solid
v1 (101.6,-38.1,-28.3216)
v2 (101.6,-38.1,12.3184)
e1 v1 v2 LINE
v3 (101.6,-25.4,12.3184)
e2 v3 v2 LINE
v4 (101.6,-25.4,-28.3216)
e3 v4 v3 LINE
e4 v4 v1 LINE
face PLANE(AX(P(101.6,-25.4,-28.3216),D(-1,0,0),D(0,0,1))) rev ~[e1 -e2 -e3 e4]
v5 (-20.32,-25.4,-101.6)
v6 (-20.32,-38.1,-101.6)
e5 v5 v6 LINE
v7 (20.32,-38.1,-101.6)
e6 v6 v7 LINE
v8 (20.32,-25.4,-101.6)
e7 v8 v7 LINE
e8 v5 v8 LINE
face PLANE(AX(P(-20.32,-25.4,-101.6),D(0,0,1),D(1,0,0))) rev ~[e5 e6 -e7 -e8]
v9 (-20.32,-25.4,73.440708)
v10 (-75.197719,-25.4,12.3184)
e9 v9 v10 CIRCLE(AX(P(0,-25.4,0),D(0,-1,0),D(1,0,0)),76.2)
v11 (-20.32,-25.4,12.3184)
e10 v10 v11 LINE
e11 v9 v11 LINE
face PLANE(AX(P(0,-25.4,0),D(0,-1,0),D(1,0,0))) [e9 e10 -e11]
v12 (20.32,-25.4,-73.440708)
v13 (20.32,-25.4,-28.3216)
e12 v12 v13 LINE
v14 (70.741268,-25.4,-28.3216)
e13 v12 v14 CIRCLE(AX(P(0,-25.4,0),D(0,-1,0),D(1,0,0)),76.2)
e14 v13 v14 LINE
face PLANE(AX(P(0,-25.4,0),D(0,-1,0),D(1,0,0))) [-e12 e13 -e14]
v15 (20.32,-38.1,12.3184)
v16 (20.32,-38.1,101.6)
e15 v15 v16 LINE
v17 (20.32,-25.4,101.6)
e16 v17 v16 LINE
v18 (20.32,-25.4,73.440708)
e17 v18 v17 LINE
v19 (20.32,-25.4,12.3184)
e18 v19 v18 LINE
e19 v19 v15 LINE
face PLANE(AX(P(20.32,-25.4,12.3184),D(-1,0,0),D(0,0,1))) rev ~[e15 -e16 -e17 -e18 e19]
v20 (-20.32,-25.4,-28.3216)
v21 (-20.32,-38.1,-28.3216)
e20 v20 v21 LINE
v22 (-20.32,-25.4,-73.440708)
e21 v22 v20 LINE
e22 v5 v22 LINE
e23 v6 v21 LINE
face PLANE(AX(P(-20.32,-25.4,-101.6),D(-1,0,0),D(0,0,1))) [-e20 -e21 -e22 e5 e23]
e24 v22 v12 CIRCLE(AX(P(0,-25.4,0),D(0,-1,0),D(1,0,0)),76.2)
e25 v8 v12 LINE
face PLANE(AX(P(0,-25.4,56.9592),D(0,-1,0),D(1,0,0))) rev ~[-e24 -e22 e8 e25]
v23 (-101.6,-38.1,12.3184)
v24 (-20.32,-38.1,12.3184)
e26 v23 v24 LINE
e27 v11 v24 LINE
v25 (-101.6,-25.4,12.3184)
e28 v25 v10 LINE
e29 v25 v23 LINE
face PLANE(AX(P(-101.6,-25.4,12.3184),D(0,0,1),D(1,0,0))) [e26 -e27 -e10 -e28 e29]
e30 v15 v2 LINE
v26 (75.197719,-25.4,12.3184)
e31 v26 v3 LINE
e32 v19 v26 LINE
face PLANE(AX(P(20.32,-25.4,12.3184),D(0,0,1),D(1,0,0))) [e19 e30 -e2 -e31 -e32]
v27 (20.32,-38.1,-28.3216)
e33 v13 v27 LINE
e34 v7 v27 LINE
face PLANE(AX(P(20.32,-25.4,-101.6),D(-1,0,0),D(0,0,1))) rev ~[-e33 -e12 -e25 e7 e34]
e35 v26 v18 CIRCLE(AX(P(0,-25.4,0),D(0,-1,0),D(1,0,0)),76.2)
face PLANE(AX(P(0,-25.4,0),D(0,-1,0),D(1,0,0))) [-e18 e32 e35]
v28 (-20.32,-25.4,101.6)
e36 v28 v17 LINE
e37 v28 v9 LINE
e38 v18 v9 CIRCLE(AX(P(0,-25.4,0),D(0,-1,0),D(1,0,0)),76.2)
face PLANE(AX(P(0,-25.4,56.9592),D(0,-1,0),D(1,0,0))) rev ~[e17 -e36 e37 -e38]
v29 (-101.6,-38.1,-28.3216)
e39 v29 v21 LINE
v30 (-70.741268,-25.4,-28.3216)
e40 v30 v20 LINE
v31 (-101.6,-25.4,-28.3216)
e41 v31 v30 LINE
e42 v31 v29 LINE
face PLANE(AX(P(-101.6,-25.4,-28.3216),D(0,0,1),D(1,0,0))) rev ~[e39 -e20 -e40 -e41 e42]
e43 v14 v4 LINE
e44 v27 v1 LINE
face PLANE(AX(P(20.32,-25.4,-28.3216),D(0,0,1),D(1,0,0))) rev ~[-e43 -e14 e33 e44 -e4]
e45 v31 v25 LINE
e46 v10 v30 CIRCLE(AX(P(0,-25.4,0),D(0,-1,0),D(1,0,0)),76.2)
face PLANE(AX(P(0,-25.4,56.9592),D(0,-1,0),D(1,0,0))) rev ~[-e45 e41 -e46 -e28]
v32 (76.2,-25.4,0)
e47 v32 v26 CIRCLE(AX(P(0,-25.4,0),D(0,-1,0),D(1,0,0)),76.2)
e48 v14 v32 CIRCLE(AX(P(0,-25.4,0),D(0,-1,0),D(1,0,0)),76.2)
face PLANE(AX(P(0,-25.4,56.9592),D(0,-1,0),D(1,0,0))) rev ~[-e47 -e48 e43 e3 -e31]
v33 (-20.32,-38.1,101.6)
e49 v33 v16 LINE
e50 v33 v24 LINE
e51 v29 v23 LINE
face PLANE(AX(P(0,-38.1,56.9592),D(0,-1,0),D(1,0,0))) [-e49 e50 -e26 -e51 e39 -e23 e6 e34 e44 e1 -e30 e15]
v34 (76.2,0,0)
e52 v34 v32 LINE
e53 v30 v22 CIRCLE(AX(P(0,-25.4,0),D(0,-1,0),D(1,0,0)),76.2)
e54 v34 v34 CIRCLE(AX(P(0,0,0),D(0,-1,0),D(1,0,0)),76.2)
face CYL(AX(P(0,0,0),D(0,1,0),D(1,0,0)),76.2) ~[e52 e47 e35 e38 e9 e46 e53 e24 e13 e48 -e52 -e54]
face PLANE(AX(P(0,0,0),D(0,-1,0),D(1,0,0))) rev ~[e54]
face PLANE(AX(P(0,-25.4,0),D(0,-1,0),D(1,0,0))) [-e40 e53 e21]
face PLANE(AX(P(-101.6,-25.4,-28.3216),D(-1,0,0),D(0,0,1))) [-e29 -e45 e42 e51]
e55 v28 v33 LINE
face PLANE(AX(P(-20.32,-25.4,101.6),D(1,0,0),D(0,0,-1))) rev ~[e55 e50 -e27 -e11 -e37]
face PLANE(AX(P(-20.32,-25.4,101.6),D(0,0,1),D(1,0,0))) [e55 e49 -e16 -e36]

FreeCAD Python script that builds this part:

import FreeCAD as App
import Part
import Sketcher

V = App.Vector
Q = App.Units.Quantity

doc = App.newDocument("Part")
params = doc.addObject("Spreadsheet::Sheet", "Params")
for row, (alias, value) in enumerate([
    ("sketch1_diameter", "6 in"),
    ("pad1_length", "1 in"),
    ("sketch2_width", "3.2 in"),
    ("sketch2_width2", "1.6 in"),
    ("pad2_length", "0.5 in"),
], start=1):
    params.set(f"A{row}", alias)
    params.set(f"B{row}", "=" + value)
    params.setAlias(f"B{row}", alias)

body = doc.addObject("PartDesign::Body", "Body")

# Sketch on XZ plane
sketch1 = doc.addObject("Sketcher::SketchObject", "Sketch")
body.addObject(sketch1)
sketch1.AttachmentSupport = (doc.XZ_Plane, [""])
sketch1.MapMode = "FlatFace"
sketch1.addGeometry(Part.Circle(V(0, 0, 0), V(0, 0, 1), 76.2), False)
sketch1.addConstraint(Sketcher.Constraint("Coincident", 0, 3, -1, 1))
sketch1.addConstraint(Sketcher.Constraint("Diameter", 0, Q("6 in")))
sketch1.setExpression("Constraints[1]", "Params.sketch1_diameter")
pad1 = doc.addObject("PartDesign::Pad", "Pad")
body.addObject(pad1)
pad1.Profile = sketch1
pad1.setExpression("Length", "Params.pad1_length")

# Sketch on XZ plane
sketch2 = doc.addObject("Sketcher::SketchObject", "Sketch001")
body.addObject(sketch2)
sketch2.AttachmentSupport = (doc.XZ_Plane, [""])
sketch2.MapMode = "FlatFace"
sketch2.AttachmentOffset = App.Placement(V(0, 0, 1 * 25.4), App.Rotation())
sketch2.addGeometry(Part.LineSegment(V(-20.32, 101.6, 0), V(-20.32, 12.3184, 0)), False)
sketch2.addGeometry(Part.LineSegment(V(-20.32, 12.3184, 0), V(-101.6, 12.3184, 0)), False)
sketch2.addGeometry(Part.LineSegment(V(-101.6, 12.3184, 0), V(-101.6, -28.3216, 0)), False)
sketch2.addGeometry(Part.LineSegment(V(-101.6, -28.3216, 0), V(-20.32, -28.3216, 0)), False)
sketch2.addGeometry(Part.LineSegment(V(-20.32, -28.3216, 0), V(-20.32, -101.6, 0)), False)
sketch2.addGeometry(Part.LineSegment(V(-20.32, -101.6, 0), V(20.32, -101.6, 0)), False)
sketch2.addGeometry(Part.LineSegment(V(20.32, -101.6, 0), V(20.32, -28.3216, 0)), False)
sketch2.addGeometry(Part.LineSegment(V(20.32, -28.3216, 0), V(101.6, -28.3216, 0)), False)
sketch2.addGeometry(Part.LineSegment(V(101.6, -28.3216, 0), V(101.6, 12.3184, 0)), False)
sketch2.addGeometry(Part.LineSegment(V(101.6, 12.3184, 0), V(20.32, 12.3184, 0)), False)
sketch2.addGeometry(Part.LineSegment(V(20.32, 12.3184, 0), V(20.32, 101.6, 0)), False)
sketch2.addGeometry(Part.LineSegment(V(20.32, 101.6, 0), V(-20.32, 101.6, 0)), False)
sketch2.addConstraint(Sketcher.Constraint("Coincident", 0, 2, 1, 1))
sketch2.addConstraint(Sketcher.Constraint("Coincident", 1, 2, 2, 1))
sketch2.addConstraint(Sketcher.Constraint("Coincident", 2, 2, 3, 1))
sketch2.addConstraint(Sketcher.Constraint("Coincident", 3, 2, 4, 1))
sketch2.addConstraint(Sketcher.Constraint("Coincident", 4, 2, 5, 1))
sketch2.addConstraint(Sketcher.Constraint("Coincident", 5, 2, 6, 1))
sketch2.addConstraint(Sketcher.Constraint("Coincident", 6, 2, 7, 1))
sketch2.addConstraint(Sketcher.Constraint("Coincident", 7, 2, 8, 1))
sketch2.addConstraint(Sketcher.Constraint("Coincident", 8, 2, 9, 1))
sketch2.addConstraint(Sketcher.Constraint("Coincident", 9, 2, 10, 1))
sketch2.addConstraint(Sketcher.Constraint("Coincident", 10, 2, 11, 1))
sketch2.addConstraint(Sketcher.Constraint("Coincident", 11, 2, 0, 1))
sketch2.addConstraint(Sketcher.Constraint("Vertical", 0))
sketch2.addConstraint(Sketcher.Constraint("Horizontal", 1))
sketch2.addConstraint(Sketcher.Constraint("Vertical", 2))
sketch2.addConstraint(Sketcher.Constraint("Horizontal", 3))
sketch2.addConstraint(Sketcher.Constraint("Vertical", 4))
sketch2.addConstraint(Sketcher.Constraint("Horizontal", 5))
sketch2.addConstraint(Sketcher.Constraint("Vertical", 6))
sketch2.addConstraint(Sketcher.Constraint("Horizontal", 7))
sketch2.addConstraint(Sketcher.Constraint("Vertical", 8))
sketch2.addConstraint(Sketcher.Constraint("Horizontal", 9))
sketch2.addConstraint(Sketcher.Constraint("Vertical", 10))
sketch2.addConstraint(Sketcher.Constraint("Horizontal", 11))
sketch2.addConstraint(Sketcher.Constraint("Symmetric", 4, 2, 10, 2, -1, 1))
sketch2.addConstraint(Sketcher.Constraint("Symmetric", 3, 2, 6, 2, -2))
sketch2.addConstraint(Sketcher.Constraint("Symmetric", 1, 2, 8, 2, -2))
sketch2.addConstraint(Sketcher.Constraint("Vertical", 0, 2, 3, 2))
sketch2.addConstraint(Sketcher.Constraint("Equal", 11, 2))
sketch2.addConstraint(Sketcher.Constraint("DistanceX", 1, 2, 1, 1, Q("3.2 in")))
sketch2.addConstraint(Sketcher.Constraint("DistanceX", 5, 1, 5, 2, Q("1.6 in")))
sketch2.addConstraint(Sketcher.Constraint("DistanceY", 4, 2, -1, 1, Q("4 in")))
sketch2.addConstraint(Sketcher.Constraint("DistanceY", 0, 2, 0, 1, 89.2816))
sketch2.setExpression("Constraints[29]", "Params.sketch2_width")
sketch2.setExpression("Constraints[30]", "Params.sketch2_width2")
pad2 = doc.addObject("PartDesign::Pad", "Pad001")
body.addObject(pad2)
pad2.Profile = sketch2
pad2.setExpression("Length", "Params.pad2_length")

doc.recompute()
